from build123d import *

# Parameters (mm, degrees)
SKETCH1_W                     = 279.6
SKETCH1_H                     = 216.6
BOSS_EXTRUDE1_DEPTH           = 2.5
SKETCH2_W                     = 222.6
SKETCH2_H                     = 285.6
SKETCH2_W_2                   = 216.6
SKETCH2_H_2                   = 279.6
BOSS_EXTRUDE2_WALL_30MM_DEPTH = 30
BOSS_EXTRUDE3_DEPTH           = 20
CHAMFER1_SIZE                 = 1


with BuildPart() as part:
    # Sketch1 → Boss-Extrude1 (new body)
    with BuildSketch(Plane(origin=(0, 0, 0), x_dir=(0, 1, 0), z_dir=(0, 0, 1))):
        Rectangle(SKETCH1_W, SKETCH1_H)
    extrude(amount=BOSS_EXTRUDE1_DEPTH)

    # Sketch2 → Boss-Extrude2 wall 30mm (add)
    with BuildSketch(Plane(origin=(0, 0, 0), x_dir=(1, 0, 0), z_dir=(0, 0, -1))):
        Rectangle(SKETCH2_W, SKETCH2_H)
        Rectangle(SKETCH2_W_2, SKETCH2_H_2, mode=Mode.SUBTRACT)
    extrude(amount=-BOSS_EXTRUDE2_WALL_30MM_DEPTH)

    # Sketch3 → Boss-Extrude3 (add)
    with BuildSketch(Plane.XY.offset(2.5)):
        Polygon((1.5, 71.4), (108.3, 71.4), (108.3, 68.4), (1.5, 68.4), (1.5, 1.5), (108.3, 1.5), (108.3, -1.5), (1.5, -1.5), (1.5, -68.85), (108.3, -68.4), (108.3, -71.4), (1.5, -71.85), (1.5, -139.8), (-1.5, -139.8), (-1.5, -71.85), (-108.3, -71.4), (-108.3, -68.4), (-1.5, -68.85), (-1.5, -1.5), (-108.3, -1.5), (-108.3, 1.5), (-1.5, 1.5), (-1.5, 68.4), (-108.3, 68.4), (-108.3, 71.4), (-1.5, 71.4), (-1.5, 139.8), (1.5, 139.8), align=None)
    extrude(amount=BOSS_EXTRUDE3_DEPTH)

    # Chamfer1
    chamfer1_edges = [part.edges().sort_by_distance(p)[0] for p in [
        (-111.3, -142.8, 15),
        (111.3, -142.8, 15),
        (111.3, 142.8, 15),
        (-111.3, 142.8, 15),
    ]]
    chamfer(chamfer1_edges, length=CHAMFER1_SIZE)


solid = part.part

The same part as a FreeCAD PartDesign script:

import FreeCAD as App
import Part
import Sketcher

V = App.Vector
Q = App.Units.Quantity


def edges_at(feature, points):
    """Names of the edges that pass closest to the given points."""
    edges = feature.Shape.Edges
    near = lambda p: min(range(len(edges)), key=lambda i: edges[i].distToShape(Part.Vertex(*p))[0])
    return sorted({f"Edge{near(p) + 1}" for p in points})

doc = App.newDocument("Part")
body = doc.addObject("PartDesign::Body", "Body")

sketch1 = body.newObject("Sketcher::SketchObject", "Sketch")
sketch1.AttachmentSupport = (doc.getObject("XY_Plane"), [""])
sketch1.MapMode = "FlatFace"
sketch1.addGeometry([
    Part.LineSegment(V(-108, -140, 0), V(108, -140, 0)),
    Part.LineSegment(V(108, -140, 0), V(108, 140, 0)),
    Part.LineSegment(V(108, 140, 0), V(-108, 140, 0)),
    Part.LineSegment(V(-108, 140, 0), V(-108, -140, 0)),
], False)
sketch1.addConstraint([
    Sketcher.Constraint("Coincident", 0, 2, 1, 1),
    Sketcher.Constraint("Coincident", 1, 2, 2, 1),
    Sketcher.Constraint("Coincident", 2, 2, 3, 1),
    Sketcher.Constraint("Coincident", 3, 2, 0, 1),
    Sketcher.Constraint("Horizontal", 0),
    Sketcher.Constraint("Vertical", 1),
    Sketcher.Constraint("Horizontal", 2),
    Sketcher.Constraint("Vertical", 3),
    Sketcher.Constraint("Symmetric", 0, 2, 2, 2, -1, 1),
    Sketcher.Constraint("DistanceX", 0, 1, 0, 2, Q("216.6 mm")),
    Sketcher.Constraint("DistanceY", 1, 1, 1, 2, Q("279.6 mm")),
])
pad1 = body.newObject("PartDesign::Pad", "Pad")
pad1.Profile = sketch1
pad1.Length = 2.5

sketch2 = body.newObject("Sketcher::SketchObject", "Sketch001")
sketch2.AttachmentSupport = (doc.getObject("XY_Plane"), [""])
sketch2.MapMode = "FlatFace"
sketch2.addGeometry([
    Part.LineSegment(V(-111, -143, 0), V(-111, 143, 0)),
    Part.LineSegment(V(-111, 143, 0), V(111, 143, 0)),
    Part.LineSegment(V(111, 143, 0), V(111, -143, 0)),
    Part.LineSegment(V(111, -143, 0), V(-111, -143, 0)),
    Part.LineSegment(V(108, 140, 0), V(-108, 140, 0)),
    Part.LineSegment(V(-108, 140, 0), V(-108, -140, 0)),
    Part.LineSegment(V(-108, -140, 0), V(108, -140, 0)),
    Part.LineSegment(V(108, -140, 0), V(108, 140, 0)),
], False)
sketch2.addConstraint([
    Sketcher.Constraint("Coincident", 0, 2, 1, 1),
    Sketcher.Constraint("Coincident", 1, 2, 2, 1),
    Sketcher.Constraint("Coincident", 2, 2, 3, 1),
    Sketcher.Constraint("Coincident", 3, 2, 0, 1),
    Sketcher.Constraint("Coincident", 4, 2, 5, 1),
    Sketcher.Constraint("Coincident", 5, 2, 6, 1),
    Sketcher.Constraint("Coincident", 6, 2, 7, 1),
    Sketcher.Constraint("Coincident", 7, 2, 4, 1),
    Sketcher.Constraint("Vertical", 0),
    Sketcher.Constraint("Horizontal", 1),
    Sketcher.Constraint("Vertical", 2),
    Sketcher.Constraint("Horizontal", 3),
    Sketcher.Constraint("Horizontal", 4),
    Sketcher.Constraint("Vertical", 5),
    Sketcher.Constraint("Horizontal", 6),
    Sketcher.Constraint("Vertical", 7),
    Sketcher.Constraint("Symmetric", 0, 2, 2, 2, -1, 1),
    Sketcher.Constraint("Symmetric", 4, 2, 6, 2, -1, 1),
    Sketcher.Constraint("DistanceX", 1, 1, 1, 2, Q("222.6 mm")),
    Sketcher.Constraint("DistanceX", 4, 2, 4, 1, Q("216.6 mm")),
    Sketcher.Constraint("DistanceY", 0, 1, 0, 2, Q("285.6 mm")),
    Sketcher.Constraint("DistanceY", 5, 2, 5, 1, Q("279.6 mm")),
])
pad2 = body.newObject("PartDesign::Pad", "Pad001")
pad2.Profile = sketch2
pad2.Length = 30

sketch3 = body.newObject("Sketcher::SketchObject", "Sketch002")
sketch3.AttachmentSupport = (doc.getObject("XY_Plane"), [""])
sketch3.MapMode = "FlatFace"
sketch3.AttachmentOffset = App.Placement(V(0, 0, 2.5), App.Rotation())
sketch3.addGeometry([
    Part.LineSegment(V(108.3, 71.4, 0), V(1.5, 71.4, 0)),
    Part.LineSegment(V(1.5, 71.4, 0), V(1.5, 139.8, 0)),
    Part.LineSegment(V(1.5, 139.8, 0), V(-1.5, 139.8, 0)),
    Part.LineSegment(V(-1.5, 139.8, 0), V(-1.5, 71.4, 0)),
    Part.LineSegment(V(-1.5, 71.4, 0), V(-108.3, 71.4, 0)),
    Part.LineSegment(V(-108.3, 71.4, 0), V(-108.3, 68.4, 0)),
    Part.LineSegment(V(-108.3, 68.4, 0), V(-1.5, 68.4, 0)),
    Part.LineSegment(V(-1.5, 68.4, 0), V(-1.5, 1.5, 0)),
    Part.LineSegment(V(-1.5, 1.5, 0), V(-108.3, 1.5, 0)),
    Part.LineSegment(V(-108.3, 1.5, 0), V(-108.3, -1.5, 0)),
    Part.LineSegment(V(-108.3, -1.5, 0), V(-1.5, -1.5, 0)),
    Part.LineSegment(V(-1.5, -1.5, 0), V(-1.5, -68.8, 0)),
    Part.LineSegment(V(-1.5, -68.8, 0), V(-108.3, -68.4, 0)),
    Part.LineSegment(V(-108.3, -68.4, 0), V(-108.3, -71.4, 0)),
    Part.LineSegment(V(-108.3, -71.4, 0), V(-1.5, -71.8, 0)),
    Part.LineSegment(V(-1.5, -71.8, 0), V(-1.5, -139.8, 0)),
    Part.LineSegment(V(-1.5, -139.8, 0), V(1.5, -139.8, 0)),
    Part.LineSegment(V(1.5, -139.8, 0), V(1.5, -71.8, 0)),
    Part.LineSegment(V(1.5, -71.8, 0), V(108.3, -71.4, 0)),
    Part.LineSegment(V(108.3, -71.4, 0), V(108.3, -68.4, 0)),
    Part.LineSegment(V(108.3, -68.4, 0), V(1.5, -68.8, 0)),
    Part.LineSegment(V(1.5, -68.8, 0), V(1.5, -1.5, 0)),
    Part.LineSegment(V(1.5, -1.5, 0), V(108.3, -1.5, 0)),
    Part.LineSegment(V(108.3, -1.5, 0), V(108.3, 1.5, 0)),
    Part.LineSegment(V(108.3, 1.5, 0), V(1.5, 1.5, 0)),
    Part.LineSegment(V(1.5, 1.5, 0), V(1.5, 68.4, 0)),
    Part.LineSegment(V(1.5, 68.4, 0), V(108.3, 68.4, 0)),
    Part.LineSegment(V(108.3, 68.4, 0), V(108.3, 71.4, 0)),
], False)
sketch3.addConstraint([
    Sketcher.Constraint("Coincident", 0, 2, 1, 1),
    Sketcher.Constraint("Coincident", 1, 2, 2, 1),
    Sketcher.Constraint("Coincident", 2, 2, 3, 1),
    Sketcher.Constraint("Coincident", 3, 2, 4, 1),
    Sketcher.Constraint("Coincident", 4, 2, 5, 1),
    Sketcher.Constraint("Coincident", 5, 2, 6, 1),
    Sketcher.Constraint("Coincident", 6, 2, 7, 1),
    Sketcher.Constraint("Coincident", 7, 2, 8, 1),
    Sketcher.Constraint("Coincident", 8, 2, 9, 1),
    Sketcher.Constraint("Coincident", 9, 2, 10, 1),
    Sketcher.Constraint("Coincident", 10, 2, 11, 1),
    Sketcher.Constraint("Coincident", 11, 2, 12, 1),
    Sketcher.Constraint("Coincident", 12, 2, 13, 1),
    Sketcher.Constraint("Coincident", 13, 2, 14, 1),
    Sketcher.Constraint("Coincident", 14, 2, 15, 1),
    Sketcher.Constraint("Coincident", 15, 2, 16, 1),
    Sketcher.Constraint("Coincident", 16, 2, 17, 1),
    Sketcher.Constraint("Coincident", 17, 2, 18, 1),
    Sketcher.Constraint("Coincident", 18, 2, 19, 1),
    Sketcher.Constraint("Coincident", 19, 2, 20, 1),
    Sketcher.Constraint("Coincident", 20, 2, 21, 1),
    Sketcher.Constraint("Coincident", 21, 2, 22, 1),
    Sketcher.Constraint("Coincident", 22, 2, 23, 1),
    Sketcher.Constraint("Coincident", 23, 2, 24, 1),
    Sketcher.Constraint("Coincident", 24, 2, 25, 1),
    Sketcher.Constraint("Coincident", 25, 2, 26, 1),
    Sketcher.Constraint("Coincident", 26, 2, 27, 1),
    Sketcher.Constraint("Coincident", 27, 2, 0, 1),
    Sketcher.Constraint("Horizontal", 0),
    Sketcher.Constraint("Vertical", 1),
    Sketcher.Constraint("Horizontal", 2),
    Sketcher.Constraint("Vertical", 3),
    Sketcher.Constraint("Horizontal", 4),
    Sketcher.Constraint("Vertical", 5),
    Sketcher.Constraint("Horizontal", 6),
    Sketcher.Constraint("Vertical", 7),
    Sketcher.Constraint("Horizontal", 8),
    Sketcher.Constraint("Vertical", 9),
    Sketcher.Constraint("Horizontal", 10),
    Sketcher.Constraint("Vertical", 11),
    Sketcher.Constraint("Vertical", 13),
    Sketcher.Constraint("Vertical", 15),
    Sketcher.Constraint("Horizontal", 16),
    Sketcher.Constraint("Vertical", 17),
    Sketcher.Constraint("Vertical", 19),
    Sketcher.Constraint("Vertical", 21),
    Sketcher.Constraint("Horizontal", 22),
    Sketcher.Constraint("Vertical", 23),
    Sketcher.Constraint("Horizontal", 24),
    Sketcher.Constraint("Vertical", 25),
    Sketcher.Constraint("Horizontal", 26),
    Sketcher.Constraint("Vertical", 27),
    Sketcher.Constraint("Symmetric", 1, 2, 15, 2, -1, 1),
    Sketcher.Constraint("Symmetric", 4, 2, 18, 2, -1, 1),
    Sketcher.Constraint("Symmetric", 7, 2, 21, 2, -1, 1),
    Sketcher.Constraint("Symmetric", 9, 2, 23, 2, -1, 1),
    Sketcher.Constraint("Symmetric", 12, 2, 26, 2, -1, 1),
    Sketcher.Constraint("Symmetric", 0, 2, 3, 2, -2),
    Sketcher.Constraint("Symmetric", 14, 2, 17, 2, -2),
    Sketcher.Constraint("Symmetric", 13, 2, 18, 2, -2),
    Sketcher.Constraint("Symmetric", 11, 2, 20, 2, -2),
    Sketcher.Constraint("Symmetric", 7, 2, 24, 2, -2),
    Sketcher.Constraint("Parallel", 12, 14),
    Sketcher.Constraint("Parallel", 18, 20),
    Sketcher.Constraint("Horizontal", 6, 2, 25, 2),
    Sketcher.Constraint("Vertical", 3, 2, 6, 2),
    Sketcher.Constraint("Vertical", 5, 2, 8, 2),
    Sketcher.Constraint("Equal", 16, 5),
    Sketcher.Constraint("Equal", 5, 9),
    Sketcher.Constraint("DistanceX", 2, 2, 2, 1, Q("3 mm")),
    Sketcher.Constraint("DistanceX", 0, 2, 0, 1, Q("106.8 mm")),
    Sketcher.Constraint("DistanceY", 1, 1, 1, 2, Q("68.4 mm")),
    Sketcher.Constraint("DistanceY", 7, 2, 7, 1, Q("66.9 mm")),
    Sketcher.Constraint("DistanceY", 11, 2, 11, 1, Q("67.35 mm")),
])
pad3 = body.newObject("PartDesign::Pad", "Pad002")
pad3.Profile = sketch3
pad3.Length = 20
doc.recompute()

chamfer = body.newObject("PartDesign::Chamfer", "Chamfer")
chamfer.Base = (pad3, edges_at(pad3, [
    (-111.3, -142.8, 15),
    (111.3, -142.8, 15),
    (111.3, 142.8, 15),
    (-111.3, 142.8, 15),
]))
chamfer.Size = 1

doc.recompute()
